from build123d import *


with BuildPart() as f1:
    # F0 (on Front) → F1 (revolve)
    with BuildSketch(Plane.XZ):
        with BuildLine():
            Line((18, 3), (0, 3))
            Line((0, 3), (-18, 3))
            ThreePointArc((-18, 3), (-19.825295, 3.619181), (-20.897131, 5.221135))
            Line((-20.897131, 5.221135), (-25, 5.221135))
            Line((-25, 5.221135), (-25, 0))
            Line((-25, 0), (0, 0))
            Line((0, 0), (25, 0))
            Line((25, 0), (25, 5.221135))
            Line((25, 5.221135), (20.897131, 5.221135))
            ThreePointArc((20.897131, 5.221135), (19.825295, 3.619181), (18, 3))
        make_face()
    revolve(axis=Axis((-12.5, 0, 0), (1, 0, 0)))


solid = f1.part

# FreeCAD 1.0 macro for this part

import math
import FreeCAD as App
import Part
import Sketcher
from FreeCAD import Vector

doc = App.newDocument("Part")
body = doc.addObject("PartDesign::Body", "Body")

# Sketch on XZ plane
sketch1 = body.newObject("Sketcher::SketchObject", "Sketch")
sketch1.AttachmentSupport = (doc.getObject("XZ_Plane"), [""])
sketch1.MapMode = "FlatFace"
sketch1.addGeometry([
    Part.LineSegment(Vector(18, 3, 0), Vector(-18, 3, 0)),  # 0
    Part.ArcOfCircle(Part.Circle(Vector(-18.000001, 5.999999, 0), Vector(0, 0, 1), 2.999999), math.radians(-164.952402), math.radians(-89.999988)),  # 1
    Part.LineSegment(Vector(-20.897131, 5.221135, 0), Vector(-25, 5.221135, 0)),  # 2
    Part.LineSegment(Vector(-25, 5.221135, 0), Vector(-25, 0, 0)),  # 3
    Part.LineSegment(Vector(-25, 0, 0), Vector(25, 0, 0)),  # 4
    Part.LineSegment(Vector(25, 0, 0), Vector(25, 5.221135, 0)),  # 5
    Part.LineSegment(Vector(25, 5.221135, 0), Vector(20.897131, 5.221135, 0)),  # 6
    Part.ArcOfCircle(Part.Circle(Vector(18.000001, 5.999999, 0), Vector(0, 0, 1), 2.999999), math.radians(-90.000012), math.radians(-15.047598)),  # 7
], False)
sketch1.addConstraint([
    Sketcher.Constraint("Tangent", 0, 2, 1, 2),
    Sketcher.Constraint("Coincident", 1, 1, 2, 1),
    Sketcher.Constraint("Coincident", 2, 2, 3, 1),
    Sketcher.Constraint("Coincident", 3, 2, 4, 1),
    Sketcher.Constraint("Coincident", 4, 2, 5, 1),
    Sketcher.Constraint("Coincident", 5, 2, 6, 1),
    Sketcher.Constraint("Coincident", 6, 2, 7, 2),
    Sketcher.Constraint("Tangent", 7, 1, 0, 1),
    Sketcher.Constraint("Horizontal", 0),
    Sketcher.Constraint("Horizontal", 2),
    Sketcher.Constraint("Vertical", 3),
    Sketcher.Constraint("Horizontal", 4),
    Sketcher.Constraint("Vertical", 5),
    Sketcher.Constraint("Horizontal", 6),
    Sketcher.Constraint("Equal", 1, 7),
    Sketcher.Constraint("Symmetric", 3, 2, 4, 2, -1, 1),
    Sketcher.Constraint("Symmetric", 1, 1, 6, 2, -2),
    Sketcher.Constraint("Radius", 1, 2.999999),
    Sketcher.Constraint("DistanceX", 0, 2, 0, 1, 36.0),
    Sketcher.Constraint("DistanceX", 4, 1, 4, 2, 50.0),
    Sketcher.Constraint("DistanceY", -1, 1, 1, 3, 5.999999),
    Sketcher.Constraint("DistanceX", 2, 2, 2, 1, 4.102869),
])
revolution = body.newObject("PartDesign::Revolution", "Revolution")
revolution.Profile = sketch1
revolution.ReferenceAxis = (sketch1, ["H_Axis"])
revolution.Angle = 360

doc.recompute()
